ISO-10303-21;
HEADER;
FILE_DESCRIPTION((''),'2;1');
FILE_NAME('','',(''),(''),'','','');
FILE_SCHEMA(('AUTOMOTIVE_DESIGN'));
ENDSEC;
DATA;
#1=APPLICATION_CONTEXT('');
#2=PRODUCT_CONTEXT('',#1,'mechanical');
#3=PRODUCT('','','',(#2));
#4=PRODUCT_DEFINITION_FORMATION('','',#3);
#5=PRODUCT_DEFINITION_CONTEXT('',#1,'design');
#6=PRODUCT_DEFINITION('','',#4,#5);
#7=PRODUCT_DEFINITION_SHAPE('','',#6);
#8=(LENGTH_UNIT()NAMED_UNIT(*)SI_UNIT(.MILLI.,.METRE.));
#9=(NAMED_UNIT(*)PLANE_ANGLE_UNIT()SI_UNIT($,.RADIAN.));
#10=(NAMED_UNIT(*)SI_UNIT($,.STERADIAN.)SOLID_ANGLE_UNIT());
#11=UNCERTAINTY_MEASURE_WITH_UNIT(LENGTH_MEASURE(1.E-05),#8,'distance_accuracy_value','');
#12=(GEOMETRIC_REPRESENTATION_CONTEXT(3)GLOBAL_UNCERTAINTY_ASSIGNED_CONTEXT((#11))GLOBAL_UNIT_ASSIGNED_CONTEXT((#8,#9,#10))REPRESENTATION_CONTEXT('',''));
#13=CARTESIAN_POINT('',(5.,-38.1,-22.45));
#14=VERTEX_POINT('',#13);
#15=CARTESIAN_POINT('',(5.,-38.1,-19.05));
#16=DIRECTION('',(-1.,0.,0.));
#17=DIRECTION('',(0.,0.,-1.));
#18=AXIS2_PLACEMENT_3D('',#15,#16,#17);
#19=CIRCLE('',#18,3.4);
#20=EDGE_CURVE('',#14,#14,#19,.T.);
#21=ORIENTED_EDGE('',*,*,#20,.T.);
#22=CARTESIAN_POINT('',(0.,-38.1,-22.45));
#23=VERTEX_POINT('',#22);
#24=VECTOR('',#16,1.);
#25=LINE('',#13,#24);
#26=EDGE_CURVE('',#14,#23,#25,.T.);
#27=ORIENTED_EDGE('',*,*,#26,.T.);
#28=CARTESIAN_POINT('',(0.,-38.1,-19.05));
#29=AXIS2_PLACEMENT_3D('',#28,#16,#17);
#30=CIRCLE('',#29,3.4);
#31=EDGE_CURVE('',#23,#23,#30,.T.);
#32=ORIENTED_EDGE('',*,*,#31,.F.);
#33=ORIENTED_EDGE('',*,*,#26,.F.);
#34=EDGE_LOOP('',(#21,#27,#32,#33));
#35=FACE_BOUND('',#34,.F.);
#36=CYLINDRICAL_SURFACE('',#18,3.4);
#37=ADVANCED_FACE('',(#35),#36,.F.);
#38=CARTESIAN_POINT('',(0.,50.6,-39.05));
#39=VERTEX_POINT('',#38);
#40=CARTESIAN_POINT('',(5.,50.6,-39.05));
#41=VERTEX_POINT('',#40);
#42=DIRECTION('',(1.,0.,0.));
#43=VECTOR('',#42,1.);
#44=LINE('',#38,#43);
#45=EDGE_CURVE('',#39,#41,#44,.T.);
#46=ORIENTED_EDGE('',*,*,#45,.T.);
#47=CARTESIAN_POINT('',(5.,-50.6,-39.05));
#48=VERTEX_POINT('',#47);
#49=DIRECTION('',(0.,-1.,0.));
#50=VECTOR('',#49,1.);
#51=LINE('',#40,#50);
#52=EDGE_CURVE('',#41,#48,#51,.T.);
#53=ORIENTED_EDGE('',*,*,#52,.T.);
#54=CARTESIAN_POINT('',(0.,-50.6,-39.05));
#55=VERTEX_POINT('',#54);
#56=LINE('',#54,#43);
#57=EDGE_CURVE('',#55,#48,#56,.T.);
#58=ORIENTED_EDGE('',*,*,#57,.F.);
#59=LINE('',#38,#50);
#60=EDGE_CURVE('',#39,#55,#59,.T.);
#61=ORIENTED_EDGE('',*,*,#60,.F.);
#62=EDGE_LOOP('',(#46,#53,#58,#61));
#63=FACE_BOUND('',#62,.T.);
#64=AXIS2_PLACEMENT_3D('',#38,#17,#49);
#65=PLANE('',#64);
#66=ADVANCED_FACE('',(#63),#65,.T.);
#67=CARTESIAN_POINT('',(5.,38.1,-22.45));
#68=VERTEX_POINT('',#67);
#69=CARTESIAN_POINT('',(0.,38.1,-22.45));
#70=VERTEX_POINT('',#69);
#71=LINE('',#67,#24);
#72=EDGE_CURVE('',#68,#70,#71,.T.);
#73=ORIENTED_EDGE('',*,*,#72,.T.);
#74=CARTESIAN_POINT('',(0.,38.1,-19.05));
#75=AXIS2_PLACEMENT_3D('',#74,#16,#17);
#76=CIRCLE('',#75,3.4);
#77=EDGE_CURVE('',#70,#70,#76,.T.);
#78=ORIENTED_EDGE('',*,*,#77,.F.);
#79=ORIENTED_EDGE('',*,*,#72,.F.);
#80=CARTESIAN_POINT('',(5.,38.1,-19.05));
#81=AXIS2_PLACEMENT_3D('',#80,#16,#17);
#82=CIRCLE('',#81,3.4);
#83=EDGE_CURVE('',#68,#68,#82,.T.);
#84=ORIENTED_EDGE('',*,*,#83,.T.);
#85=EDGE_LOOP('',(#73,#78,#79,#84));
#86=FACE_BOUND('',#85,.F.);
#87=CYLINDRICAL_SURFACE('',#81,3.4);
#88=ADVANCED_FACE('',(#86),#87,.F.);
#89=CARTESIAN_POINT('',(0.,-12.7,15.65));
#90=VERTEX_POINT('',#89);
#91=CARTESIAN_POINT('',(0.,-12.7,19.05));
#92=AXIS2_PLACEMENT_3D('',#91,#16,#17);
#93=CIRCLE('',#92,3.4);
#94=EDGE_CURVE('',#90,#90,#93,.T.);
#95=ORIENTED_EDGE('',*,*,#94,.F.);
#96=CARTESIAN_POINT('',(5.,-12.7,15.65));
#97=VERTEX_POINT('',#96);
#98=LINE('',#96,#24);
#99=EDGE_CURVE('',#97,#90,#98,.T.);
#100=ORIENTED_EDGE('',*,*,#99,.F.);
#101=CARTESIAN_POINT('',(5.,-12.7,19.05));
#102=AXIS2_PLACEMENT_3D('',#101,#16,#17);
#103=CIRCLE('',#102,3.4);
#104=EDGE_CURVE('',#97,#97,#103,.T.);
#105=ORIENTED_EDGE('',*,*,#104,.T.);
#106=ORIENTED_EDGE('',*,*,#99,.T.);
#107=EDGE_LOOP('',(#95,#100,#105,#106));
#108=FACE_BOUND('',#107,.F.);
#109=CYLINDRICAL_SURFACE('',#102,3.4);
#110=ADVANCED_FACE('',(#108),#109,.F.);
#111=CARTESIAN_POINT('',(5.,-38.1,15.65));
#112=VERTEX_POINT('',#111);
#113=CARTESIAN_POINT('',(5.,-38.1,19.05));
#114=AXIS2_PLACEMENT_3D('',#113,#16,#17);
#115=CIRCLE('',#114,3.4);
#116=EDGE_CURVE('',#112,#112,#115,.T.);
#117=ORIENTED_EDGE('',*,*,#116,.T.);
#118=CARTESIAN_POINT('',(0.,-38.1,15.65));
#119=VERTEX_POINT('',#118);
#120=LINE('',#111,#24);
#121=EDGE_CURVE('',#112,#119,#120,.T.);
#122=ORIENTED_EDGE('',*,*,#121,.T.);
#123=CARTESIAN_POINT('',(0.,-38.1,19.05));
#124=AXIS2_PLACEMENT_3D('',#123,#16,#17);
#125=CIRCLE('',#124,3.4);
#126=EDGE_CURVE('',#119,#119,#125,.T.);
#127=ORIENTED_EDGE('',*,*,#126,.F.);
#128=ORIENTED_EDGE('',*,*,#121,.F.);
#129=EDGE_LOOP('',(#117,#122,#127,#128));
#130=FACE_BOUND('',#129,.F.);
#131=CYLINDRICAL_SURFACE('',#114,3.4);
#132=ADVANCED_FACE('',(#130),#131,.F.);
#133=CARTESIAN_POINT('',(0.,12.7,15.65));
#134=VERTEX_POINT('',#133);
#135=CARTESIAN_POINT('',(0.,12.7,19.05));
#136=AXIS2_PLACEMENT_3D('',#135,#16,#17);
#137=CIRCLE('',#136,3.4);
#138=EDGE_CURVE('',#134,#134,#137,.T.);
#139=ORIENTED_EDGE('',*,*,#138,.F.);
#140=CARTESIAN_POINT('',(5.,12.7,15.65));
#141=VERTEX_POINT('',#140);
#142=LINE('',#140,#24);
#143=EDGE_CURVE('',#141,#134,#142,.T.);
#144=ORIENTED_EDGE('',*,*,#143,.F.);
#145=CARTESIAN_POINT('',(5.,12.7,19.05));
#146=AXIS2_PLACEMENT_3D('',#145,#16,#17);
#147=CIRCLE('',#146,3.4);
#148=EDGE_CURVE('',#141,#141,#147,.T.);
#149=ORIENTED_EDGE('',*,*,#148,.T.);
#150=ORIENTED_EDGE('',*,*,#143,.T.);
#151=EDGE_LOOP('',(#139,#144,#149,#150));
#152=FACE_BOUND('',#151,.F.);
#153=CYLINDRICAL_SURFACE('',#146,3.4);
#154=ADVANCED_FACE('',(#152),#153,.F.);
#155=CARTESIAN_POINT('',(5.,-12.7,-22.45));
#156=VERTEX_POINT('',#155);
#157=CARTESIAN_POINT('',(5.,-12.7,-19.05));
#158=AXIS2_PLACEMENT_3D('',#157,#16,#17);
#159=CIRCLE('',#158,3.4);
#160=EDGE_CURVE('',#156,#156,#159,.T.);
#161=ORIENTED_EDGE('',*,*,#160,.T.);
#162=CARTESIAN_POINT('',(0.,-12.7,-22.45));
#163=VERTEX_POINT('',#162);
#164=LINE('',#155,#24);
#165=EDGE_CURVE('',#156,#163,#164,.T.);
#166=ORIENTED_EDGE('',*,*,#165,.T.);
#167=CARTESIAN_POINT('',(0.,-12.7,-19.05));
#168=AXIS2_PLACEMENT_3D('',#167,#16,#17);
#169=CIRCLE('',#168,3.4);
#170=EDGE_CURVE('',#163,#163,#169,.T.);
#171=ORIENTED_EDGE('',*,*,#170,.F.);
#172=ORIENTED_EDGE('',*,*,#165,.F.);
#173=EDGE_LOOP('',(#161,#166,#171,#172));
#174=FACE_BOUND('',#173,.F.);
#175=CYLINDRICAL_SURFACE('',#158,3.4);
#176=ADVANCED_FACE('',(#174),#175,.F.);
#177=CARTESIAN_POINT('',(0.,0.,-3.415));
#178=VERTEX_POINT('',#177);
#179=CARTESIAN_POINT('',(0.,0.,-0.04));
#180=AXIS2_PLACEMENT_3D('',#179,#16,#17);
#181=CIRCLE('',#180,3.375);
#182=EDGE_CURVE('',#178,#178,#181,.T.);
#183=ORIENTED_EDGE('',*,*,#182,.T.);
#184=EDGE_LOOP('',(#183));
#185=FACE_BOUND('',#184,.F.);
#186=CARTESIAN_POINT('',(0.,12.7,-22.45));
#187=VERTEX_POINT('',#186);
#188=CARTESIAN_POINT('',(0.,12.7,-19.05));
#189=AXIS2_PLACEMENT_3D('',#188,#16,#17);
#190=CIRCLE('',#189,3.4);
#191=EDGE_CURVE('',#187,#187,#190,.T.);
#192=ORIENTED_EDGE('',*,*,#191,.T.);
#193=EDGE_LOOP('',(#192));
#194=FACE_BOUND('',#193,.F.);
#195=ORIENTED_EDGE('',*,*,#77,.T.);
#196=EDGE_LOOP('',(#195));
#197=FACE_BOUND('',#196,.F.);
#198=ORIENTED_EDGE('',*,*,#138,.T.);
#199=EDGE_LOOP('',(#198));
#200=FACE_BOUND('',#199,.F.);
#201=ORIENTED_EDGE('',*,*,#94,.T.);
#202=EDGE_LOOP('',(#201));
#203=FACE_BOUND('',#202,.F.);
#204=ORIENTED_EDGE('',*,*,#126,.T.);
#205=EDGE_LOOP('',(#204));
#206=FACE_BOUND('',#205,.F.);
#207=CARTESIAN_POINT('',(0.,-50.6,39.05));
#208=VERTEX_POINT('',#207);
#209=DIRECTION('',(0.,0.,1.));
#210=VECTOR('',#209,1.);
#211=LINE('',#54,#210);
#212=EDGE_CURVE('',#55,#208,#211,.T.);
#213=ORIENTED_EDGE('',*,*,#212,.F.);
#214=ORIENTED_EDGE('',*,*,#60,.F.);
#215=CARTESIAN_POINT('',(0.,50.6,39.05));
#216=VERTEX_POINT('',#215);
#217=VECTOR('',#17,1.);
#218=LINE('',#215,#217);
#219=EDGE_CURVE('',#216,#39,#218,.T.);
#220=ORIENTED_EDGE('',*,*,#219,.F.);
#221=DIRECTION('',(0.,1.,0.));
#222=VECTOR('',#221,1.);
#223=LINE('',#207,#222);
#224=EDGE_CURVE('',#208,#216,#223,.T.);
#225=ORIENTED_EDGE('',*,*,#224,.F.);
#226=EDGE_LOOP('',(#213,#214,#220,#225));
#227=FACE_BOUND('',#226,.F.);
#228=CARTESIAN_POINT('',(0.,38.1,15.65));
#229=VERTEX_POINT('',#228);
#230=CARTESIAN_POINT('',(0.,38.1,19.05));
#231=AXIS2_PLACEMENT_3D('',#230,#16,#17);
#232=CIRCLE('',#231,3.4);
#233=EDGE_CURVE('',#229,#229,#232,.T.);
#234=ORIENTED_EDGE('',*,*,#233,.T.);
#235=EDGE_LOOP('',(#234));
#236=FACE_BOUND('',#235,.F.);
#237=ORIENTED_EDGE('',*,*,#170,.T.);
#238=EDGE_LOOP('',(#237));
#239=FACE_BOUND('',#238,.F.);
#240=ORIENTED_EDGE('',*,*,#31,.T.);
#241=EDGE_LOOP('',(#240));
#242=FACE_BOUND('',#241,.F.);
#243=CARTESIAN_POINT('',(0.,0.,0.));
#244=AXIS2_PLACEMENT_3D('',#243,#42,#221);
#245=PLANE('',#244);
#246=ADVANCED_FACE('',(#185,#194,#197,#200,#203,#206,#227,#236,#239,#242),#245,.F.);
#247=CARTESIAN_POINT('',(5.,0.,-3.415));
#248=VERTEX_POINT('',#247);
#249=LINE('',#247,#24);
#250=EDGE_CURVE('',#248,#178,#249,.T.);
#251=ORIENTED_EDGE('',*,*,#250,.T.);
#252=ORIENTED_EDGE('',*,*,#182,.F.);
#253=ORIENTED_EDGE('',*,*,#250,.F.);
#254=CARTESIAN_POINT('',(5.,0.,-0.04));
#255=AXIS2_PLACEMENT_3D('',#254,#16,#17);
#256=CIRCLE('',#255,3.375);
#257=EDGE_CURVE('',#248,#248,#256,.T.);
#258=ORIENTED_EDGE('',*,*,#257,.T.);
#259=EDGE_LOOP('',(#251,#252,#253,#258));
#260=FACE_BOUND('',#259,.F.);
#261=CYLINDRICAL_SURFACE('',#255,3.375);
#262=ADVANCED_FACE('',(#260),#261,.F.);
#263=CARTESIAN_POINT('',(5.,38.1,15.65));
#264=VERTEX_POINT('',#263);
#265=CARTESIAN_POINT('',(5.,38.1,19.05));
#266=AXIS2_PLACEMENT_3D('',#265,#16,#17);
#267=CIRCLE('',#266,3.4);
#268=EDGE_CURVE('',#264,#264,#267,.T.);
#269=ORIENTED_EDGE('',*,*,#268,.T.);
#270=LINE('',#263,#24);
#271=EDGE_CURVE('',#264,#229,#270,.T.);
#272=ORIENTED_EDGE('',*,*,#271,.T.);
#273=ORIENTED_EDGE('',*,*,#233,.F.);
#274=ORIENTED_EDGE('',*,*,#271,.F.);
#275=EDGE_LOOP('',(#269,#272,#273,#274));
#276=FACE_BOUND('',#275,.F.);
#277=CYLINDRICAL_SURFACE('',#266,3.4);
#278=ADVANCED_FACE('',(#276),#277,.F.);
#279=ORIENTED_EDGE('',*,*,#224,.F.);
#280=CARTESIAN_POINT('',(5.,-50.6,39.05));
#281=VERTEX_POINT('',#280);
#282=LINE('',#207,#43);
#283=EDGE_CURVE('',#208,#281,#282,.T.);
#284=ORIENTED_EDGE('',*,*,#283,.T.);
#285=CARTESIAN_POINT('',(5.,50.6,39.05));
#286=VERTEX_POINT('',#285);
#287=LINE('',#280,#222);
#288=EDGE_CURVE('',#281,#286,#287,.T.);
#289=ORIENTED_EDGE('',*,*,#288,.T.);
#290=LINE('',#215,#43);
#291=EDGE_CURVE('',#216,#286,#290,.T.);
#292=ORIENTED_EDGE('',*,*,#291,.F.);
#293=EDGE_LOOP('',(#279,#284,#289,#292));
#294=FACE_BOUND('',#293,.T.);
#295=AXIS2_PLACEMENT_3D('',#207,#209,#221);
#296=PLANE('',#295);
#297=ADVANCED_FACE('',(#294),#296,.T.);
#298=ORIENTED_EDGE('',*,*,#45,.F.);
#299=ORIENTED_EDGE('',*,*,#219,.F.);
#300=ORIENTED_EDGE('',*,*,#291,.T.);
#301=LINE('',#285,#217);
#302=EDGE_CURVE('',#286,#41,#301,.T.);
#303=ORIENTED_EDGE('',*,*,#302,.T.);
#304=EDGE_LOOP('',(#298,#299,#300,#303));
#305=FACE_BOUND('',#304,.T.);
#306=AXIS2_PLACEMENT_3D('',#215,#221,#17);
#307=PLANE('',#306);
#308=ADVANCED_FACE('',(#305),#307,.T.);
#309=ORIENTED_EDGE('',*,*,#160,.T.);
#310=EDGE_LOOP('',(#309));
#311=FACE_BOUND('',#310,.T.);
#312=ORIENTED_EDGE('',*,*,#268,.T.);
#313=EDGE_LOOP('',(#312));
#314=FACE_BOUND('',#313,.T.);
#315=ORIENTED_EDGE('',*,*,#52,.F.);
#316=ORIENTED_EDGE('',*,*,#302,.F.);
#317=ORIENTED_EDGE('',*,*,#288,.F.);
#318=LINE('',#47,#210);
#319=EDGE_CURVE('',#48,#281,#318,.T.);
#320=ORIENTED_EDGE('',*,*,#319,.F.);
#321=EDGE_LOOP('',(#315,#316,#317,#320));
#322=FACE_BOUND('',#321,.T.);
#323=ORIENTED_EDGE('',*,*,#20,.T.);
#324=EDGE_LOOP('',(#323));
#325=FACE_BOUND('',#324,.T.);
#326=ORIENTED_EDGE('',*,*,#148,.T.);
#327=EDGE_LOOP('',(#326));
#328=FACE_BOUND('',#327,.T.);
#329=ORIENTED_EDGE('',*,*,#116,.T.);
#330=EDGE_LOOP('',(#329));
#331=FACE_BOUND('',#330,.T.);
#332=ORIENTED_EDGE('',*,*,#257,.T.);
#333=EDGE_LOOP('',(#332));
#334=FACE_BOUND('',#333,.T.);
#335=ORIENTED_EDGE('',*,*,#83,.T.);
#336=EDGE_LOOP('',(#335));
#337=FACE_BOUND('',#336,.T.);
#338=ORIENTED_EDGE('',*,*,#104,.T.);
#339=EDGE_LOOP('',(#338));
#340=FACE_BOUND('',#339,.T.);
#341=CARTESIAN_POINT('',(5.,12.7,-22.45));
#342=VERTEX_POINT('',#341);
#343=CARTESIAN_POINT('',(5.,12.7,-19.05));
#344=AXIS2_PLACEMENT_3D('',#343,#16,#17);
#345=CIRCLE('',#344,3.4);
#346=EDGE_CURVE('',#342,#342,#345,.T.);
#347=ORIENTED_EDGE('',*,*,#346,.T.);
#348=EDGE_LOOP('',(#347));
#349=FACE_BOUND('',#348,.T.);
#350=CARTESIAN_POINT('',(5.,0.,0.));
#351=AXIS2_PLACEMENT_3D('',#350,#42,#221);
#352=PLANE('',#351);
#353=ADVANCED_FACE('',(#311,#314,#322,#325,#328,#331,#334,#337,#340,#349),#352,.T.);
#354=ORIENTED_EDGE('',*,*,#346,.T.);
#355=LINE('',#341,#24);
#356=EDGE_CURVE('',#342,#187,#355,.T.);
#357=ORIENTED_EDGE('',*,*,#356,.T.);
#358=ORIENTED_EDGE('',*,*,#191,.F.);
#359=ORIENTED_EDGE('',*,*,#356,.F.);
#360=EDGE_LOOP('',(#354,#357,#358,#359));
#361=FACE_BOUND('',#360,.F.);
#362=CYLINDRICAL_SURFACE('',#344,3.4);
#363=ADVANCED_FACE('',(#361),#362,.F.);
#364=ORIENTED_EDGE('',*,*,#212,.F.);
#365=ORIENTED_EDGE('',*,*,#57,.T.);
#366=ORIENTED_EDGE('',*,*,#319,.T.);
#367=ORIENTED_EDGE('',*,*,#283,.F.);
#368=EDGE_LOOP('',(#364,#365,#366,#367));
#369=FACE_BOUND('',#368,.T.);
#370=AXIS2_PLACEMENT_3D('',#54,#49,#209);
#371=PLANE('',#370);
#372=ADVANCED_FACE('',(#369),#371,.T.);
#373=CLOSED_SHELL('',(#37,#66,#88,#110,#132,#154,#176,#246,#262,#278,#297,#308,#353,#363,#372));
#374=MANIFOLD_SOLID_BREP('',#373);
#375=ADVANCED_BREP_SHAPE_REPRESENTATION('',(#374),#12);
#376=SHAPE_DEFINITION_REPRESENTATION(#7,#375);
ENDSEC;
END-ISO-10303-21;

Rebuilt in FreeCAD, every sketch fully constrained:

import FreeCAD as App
import Part
import Sketcher
from FreeCAD import Vector

doc = App.newDocument("Part")
body = doc.addObject("PartDesign::Body", "Body")

sketch1 = doc.addObject("Sketcher::SketchObject", "Sketch")
body.addObject(sketch1)
sketch1.AttachmentSupport = (doc.YZ_Plane, [""])
sketch1.MapMode = "FlatFace"
sketch1.addGeometry([
    Part.LineSegment(Vector(-50.6, -39.05, 0), Vector(50.6, -39.05, 0)),
    Part.LineSegment(Vector(50.6, -39.05, 0), Vector(50.6, 39.05, 0)),
    Part.LineSegment(Vector(50.6, 39.05, 0), Vector(-50.6, 39.05, 0)),
    Part.LineSegment(Vector(-50.6, 39.05, 0), Vector(-50.6, -39.05, 0)),
], False)
sketch1.addConstraint([
    Sketcher.Constraint("Coincident", 0, 2, 1, 1),
    Sketcher.Constraint("Coincident", 1, 2, 2, 1),
    Sketcher.Constraint("Coincident", 2, 2, 3, 1),
    Sketcher.Constraint("Coincident", 3, 2, 0, 1),
    Sketcher.Constraint("Horizontal", 0),
    Sketcher.Constraint("Vertical", 1),
    Sketcher.Constraint("Horizontal", 2),
    Sketcher.Constraint("Vertical", 3),
    Sketcher.Constraint("Symmetric", 0, 2, 2, 2, -1, 1),
    Sketcher.Constraint("DistanceX", 0, 1, 0, 2, 101.2),
    Sketcher.Constraint("DistanceY", 1, 1, 1, 2, 78.1),
])
pad1 = doc.addObject("PartDesign::Pad", "Pad")
body.addObject(pad1)
pad1.Profile = sketch1
pad1.Length = 5

sketch2 = doc.addObject("Sketcher::SketchObject", "Sketch001")
body.addObject(sketch2)
sketch2.AttachmentSupport = (doc.YZ_Plane, [""])
sketch2.MapMode = "FlatFace"
sketch2.AttachmentOffset = App.Placement(Vector(0, 0, 5), App.Rotation())
sketch2.addGeometry(Part.Circle(Vector(38.1, -19.05, 0), Vector(0, 0, 1), 3.4), False)
sketch2.addConstraint([
    Sketcher.Constraint("Diameter", 0, 6.8),
    Sketcher.Constraint("DistanceX", -1, 1, 0, 3, 38.1),
    Sketcher.Constraint("DistanceY", 0, 3, -1, 1, 19.05),
])
doc.recompute()
hole = doc.addObject("PartDesign::Hole", "Hole")
body.addObject(hole)
hole.Profile = sketch2
hole.ThreadType = "None"
hole.Diameter = 6.8
hole.DepthType = "ThroughAll"

sketch3 = doc.addObject("Sketcher::SketchObject", "Sketch002")
body.addObject(sketch3)
sketch3.AttachmentSupport = (doc.YZ_Plane, [""])
sketch3.MapMode = "FlatFace"
sketch3.AttachmentOffset = App.Placement(Vector(0, 0, 5), App.Rotation())
sketch3.addGeometry(Part.Circle(Vector(38.1, 19.05, 0), Vector(0, 0, 1), 3.4), False)
sketch3.addConstraint([
    Sketcher.Constraint("Diameter", 0, 6.8),
    Sketcher.Constraint("DistanceX", -1, 1, 0, 3, 38.1),
    Sketcher.Constraint("DistanceY", -1, 1, 0, 3, 19.05),
])
doc.recompute()
hole2 = doc.addObject("PartDesign::Hole", "Hole001")
body.addObject(hole2)
hole2.Profile = sketch3
hole2.ThreadType = "None"
hole2.Diameter = 6.8
hole2.DepthType = "ThroughAll"
doc.recompute()

linearpattern = doc.addObject("PartDesign::LinearPattern", "LinearPattern")
body.addObject(linearpattern)
linearpattern.Originals = [hole]
linearpattern.Direction = (doc.Y_Axis, [""])
linearpattern.Mode = "offset"
linearpattern.Offset = 25.4
linearpattern.Occurrences = 6
linearpattern.Reversed = True
body.Tip = linearpattern
doc.recompute()

linearpattern2 = doc.addObject("PartDesign::LinearPattern", "LinearPattern001")
body.addObject(linearpattern2)
linearpattern2.Originals = [hole2]
linearpattern2.Direction = (doc.Y_Axis, [""])
linearpattern2.Mode = "offset"
linearpattern2.Offset = 25.4
linearpattern2.Occurrences = 6
linearpattern2.Reversed = True
body.Tip = linearpattern2

sketch4 = doc.addObject("Sketcher::SketchObject", "Sketch003")
body.addObject(sketch4)
sketch4.AttachmentSupport = (doc.YZ_Plane, [""])
sketch4.MapMode = "FlatFace"
sketch4.AttachmentOffset = App.Placement(Vector(0, 0, 5), App.Rotation())
sketch4.addGeometry(Part.Circle(Vector(0, -0.04, 0), Vector(0, 0, 1), 3.375), False)
sketch4.addConstraint([
    Sketcher.Constraint("PointOnObject", 0, 3, -2),
    Sketcher.Constraint("Diameter", 0, 6.75),
    Sketcher.Constraint("DistanceY", 0, 3, -1, 1, 0.04),
])
doc.recompute()
hole3 = doc.addObject("PartDesign::Hole", "Hole002")
body.addObject(hole3)
hole3.Profile = sketch4
hole3.ThreadType = "None"
hole3.Diameter = 6.75
hole3.DepthType = "ThroughAll"

doc.recompute()
